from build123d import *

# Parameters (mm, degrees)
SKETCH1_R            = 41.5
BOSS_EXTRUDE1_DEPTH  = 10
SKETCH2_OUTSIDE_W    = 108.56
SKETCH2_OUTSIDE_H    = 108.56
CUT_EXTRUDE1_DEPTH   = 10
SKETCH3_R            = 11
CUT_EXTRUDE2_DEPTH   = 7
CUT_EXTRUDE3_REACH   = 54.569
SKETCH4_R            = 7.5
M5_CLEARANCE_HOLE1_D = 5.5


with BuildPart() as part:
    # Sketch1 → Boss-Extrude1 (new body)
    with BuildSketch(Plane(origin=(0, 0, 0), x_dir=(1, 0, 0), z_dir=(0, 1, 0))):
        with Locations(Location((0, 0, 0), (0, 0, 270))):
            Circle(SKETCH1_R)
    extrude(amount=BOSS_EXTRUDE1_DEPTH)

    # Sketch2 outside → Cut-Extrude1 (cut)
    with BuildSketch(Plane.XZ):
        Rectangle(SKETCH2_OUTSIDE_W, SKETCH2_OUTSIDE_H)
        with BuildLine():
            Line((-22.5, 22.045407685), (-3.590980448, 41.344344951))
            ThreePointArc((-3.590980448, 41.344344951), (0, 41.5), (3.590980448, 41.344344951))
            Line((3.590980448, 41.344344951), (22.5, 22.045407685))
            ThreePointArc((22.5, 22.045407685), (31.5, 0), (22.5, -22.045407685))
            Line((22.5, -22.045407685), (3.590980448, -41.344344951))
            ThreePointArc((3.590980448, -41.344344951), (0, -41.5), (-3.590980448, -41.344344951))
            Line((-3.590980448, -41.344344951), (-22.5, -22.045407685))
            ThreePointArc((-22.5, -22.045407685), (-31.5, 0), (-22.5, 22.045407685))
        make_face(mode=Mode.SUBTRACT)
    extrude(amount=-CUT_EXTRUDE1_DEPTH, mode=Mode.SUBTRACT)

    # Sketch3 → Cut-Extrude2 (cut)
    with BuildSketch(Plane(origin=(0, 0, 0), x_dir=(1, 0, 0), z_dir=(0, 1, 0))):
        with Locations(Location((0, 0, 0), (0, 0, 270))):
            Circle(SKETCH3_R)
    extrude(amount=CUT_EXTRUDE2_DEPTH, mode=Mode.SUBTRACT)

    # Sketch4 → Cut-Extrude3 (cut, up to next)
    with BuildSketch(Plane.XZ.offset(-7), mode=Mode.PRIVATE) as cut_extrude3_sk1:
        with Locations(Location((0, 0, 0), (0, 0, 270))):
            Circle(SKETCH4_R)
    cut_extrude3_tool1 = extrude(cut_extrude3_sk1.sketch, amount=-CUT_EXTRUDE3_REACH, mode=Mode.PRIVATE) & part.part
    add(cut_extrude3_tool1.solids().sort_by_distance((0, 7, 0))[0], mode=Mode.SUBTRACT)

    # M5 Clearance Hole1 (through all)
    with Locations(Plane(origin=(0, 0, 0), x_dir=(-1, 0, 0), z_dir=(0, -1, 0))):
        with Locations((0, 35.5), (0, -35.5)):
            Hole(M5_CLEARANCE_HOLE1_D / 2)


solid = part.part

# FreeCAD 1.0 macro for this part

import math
import FreeCAD as App
import Part
import Sketcher

doc = App.newDocument("Part")
params = doc.addObject("Spreadsheet::Sheet", "Params")
for row, (alias, value) in enumerate([
    ("sketch1_diameter", "83 mm"),
    ("pad1_length", "10 mm"),
    ("sketch2_radius", "31.5 mm"),
    ("sketch2_radius2", "41.5 mm"),
    ("sketch2_width", "108.56 mm"),
    ("pocket1_length", "10 mm"),
    ("sketch3_diameter", "22 mm"),
    ("pocket2_length", "7 mm"),
    ("sketch4_diameter", "15 mm"),
    ("sketch5_diameter", "5.5 mm"),
    ("hole_diameter", "5.5 mm"),
], start=1):
    params.set(f"A{row}", alias)
    params.set(f"B{row}", "=" + value)
    params.setAlias(f"B{row}", alias)

body = doc.addObject("PartDesign::Body", "Body")

sketch1 = doc.addObject("Sketcher::SketchObject", "Sketch")
body.addObject(sketch1)
sketch1.AttachmentSupport = (doc.XZ_Plane, [""])
sketch1.MapMode = "FlatFace"
sketch1.addGeometry(Part.Circle(App.Vector(0, 0, 0), App.Vector(0, 0, 1), 41.5), False)
sketch1.addConstraint([
    Sketcher.Constraint("Coincident", 0, 3, -1, 1),
    Sketcher.Constraint("Diameter", 0, 83.0),
])
sketch1.setExpression("Constraints[1]", "Params.sketch1_diameter")
pad1 = doc.addObject("PartDesign::Pad", "Pad")
body.addObject(pad1)
pad1.Profile = sketch1
pad1.setExpression("Length", "Params.pad1_length")
pad1.Reversed = True

sketch2 = doc.addObject("Sketcher::SketchObject", "Sketch001")
body.addObject(sketch2)
sketch2.AttachmentSupport = (doc.XZ_Plane, [""])
sketch2.MapMode = "FlatFace"
sketch2.addGeometry([
    Part.LineSegment(App.Vector(-54.28, 54.28, 0), App.Vector(-54.28, -54.28, 0)),
    Part.LineSegment(App.Vector(-54.28, -54.28, 0), App.Vector(54.28, -54.28, 0)),
    Part.LineSegment(App.Vector(54.28, -54.28, 0), App.Vector(54.28, 54.28, 0)),
    Part.LineSegment(App.Vector(54.28, 54.28, 0), App.Vector(-54.28, 54.28, 0)),
    Part.ArcOfCircle(Part.Circle(App.Vector(0, 0, 0), App.Vector(0, 0, 1), 31.5), math.radians(135.584691), math.radians(224.415309)),
    Part.LineSegment(App.Vector(-22.5, 22.045408, 0), App.Vector(-3.59098, 41.344345, 0)),
    Part.ArcOfCircle(Part.Circle(App.Vector(0, 0, 0), App.Vector(0, 0, 1), 41.5), math.radians(85.036009), math.radians(94.963991)),
    Part.LineSegment(App.Vector(3.59098, 41.344345, 0), App.Vector(22.5, 22.045408, 0)),
    Part.ArcOfCircle(Part.Circle(App.Vector(0, 0, 0), App.Vector(0, 0, 1), 31.5), math.radians(-44.415309), math.radians(44.415309)),
    Part.LineSegment(App.Vector(22.5, -22.045408, 0), App.Vector(3.59098, -41.344345, 0)),
    Part.ArcOfCircle(Part.Circle(App.Vector(0, 0, 0), App.Vector(0, 0, 1), 41.5), math.radians(-94.963991), math.radians(-85.036009)),
    Part.LineSegment(App.Vector(-3.59098, -41.344345, 0), App.Vector(-22.5, -22.045408, 0)),
], False)
sketch2.addConstraint([
    Sketcher.Constraint("Coincident", 0, 2, 1, 1),
    Sketcher.Constraint("Coincident", 1, 2, 2, 1),
    Sketcher.Constraint("Coincident", 2, 2, 3, 1),
    Sketcher.Constraint("Coincident", 3, 2, 0, 1),
    Sketcher.Constraint("Tangent", 4, 1, 5, 1),
    Sketcher.Constraint("Coincident", 5, 2, 6, 2),
    Sketcher.Constraint("Coincident", 6, 1, 7, 1),
    Sketcher.Constraint("Tangent", 7, 2, 8, 2),
    Sketcher.Constraint("Tangent", 8, 1, 9, 1),
    Sketcher.Constraint("Coincident", 9, 2, 10, 2),
    Sketcher.Constraint("Coincident", 10, 1, 11, 1),
    Sketcher.Constraint("Tangent", 11, 2, 4, 2),
    Sketcher.Constraint("Vertical", 0),
    Sketcher.Constraint("Horizontal", 1),
    Sketcher.Constraint("Vertical", 2),
    Sketcher.Constraint("Horizontal", 3),
    Sketcher.Constraint("Coincident", 4, 3, -1, 1),
    Sketcher.Constraint("Coincident", 6, 3, -1, 1),
    Sketcher.Constraint("Coincident", 8, 3, -1, 1),
    Sketcher.Constraint("Coincident", 10, 3, -1, 1),
    Sketcher.Constraint("Equal", 4, 8),
    Sketcher.Constraint("Equal", 6, 10),
    Sketcher.Constraint("Symmetric", 0, 2, 2, 2, -1, 1),
    Sketcher.Constraint("Parallel", 5, 9),
    Sketcher.Constraint("Parallel", 7, 11),
    Sketcher.Constraint("Horizontal", 5, 2, 6, 1),
    Sketcher.Constraint("Equal", 3, 0),
    Sketcher.Constraint("Radius", 4, 31.5),
    Sketcher.Constraint("Radius", 6, 41.5),
    Sketcher.Constraint("DistanceX", 1, 1, 1, 2, 108.56),
    Sketcher.Constraint("DistanceX", 4, 1, -1, 1, 22.5),
])
sketch2.setExpression("Constraints[27]", "Params.sketch2_radius")
sketch2.setExpression("Constraints[28]", "Params.sketch2_radius2")
sketch2.setExpression("Constraints[29]", "Params.sketch2_width")
pocket1 = doc.addObject("PartDesign::Pocket", "Pocket")
body.addObject(pocket1)
pocket1.Profile = sketch2
pocket1.setExpression("Length", "Params.pocket1_length")

sketch3 = doc.addObject("Sketcher::SketchObject", "Sketch002")
body.addObject(sketch3)
sketch3.AttachmentSupport = (doc.XZ_Plane, [""])
sketch3.MapMode = "FlatFace"
sketch3.addGeometry(Part.Circle(App.Vector(0, 0, 0), App.Vector(0, 0, 1), 11), False)
sketch3.addConstraint([
    Sketcher.Constraint("Coincident", 0, 3, -1, 1),
    Sketcher.Constraint("Diameter", 0, 22.0),
])
sketch3.setExpression("Constraints[1]", "Params.sketch3_diameter")
pocket2 = doc.addObject("PartDesign::Pocket", "Pocket001")
body.addObject(pocket2)
pocket2.Profile = sketch3
pocket2.setExpression("Length", "Params.pocket2_length")

sketch4 = doc.addObject("Sketcher::SketchObject", "Sketch003")
body.addObject(sketch4)
sketch4.AttachmentSupport = (doc.XZ_Plane, [""])
sketch4.MapMode = "FlatFace"
sketch4.AttachmentOffset = App.Placement(App.Vector(0, 0, -7), App.Rotation())
sketch4.addGeometry(Part.Circle(App.Vector(0, 0, 0), App.Vector(0, 0, 1), 7.5), False)
sketch4.addConstraint([
    Sketcher.Constraint("Coincident", 0, 3, -1, 1),
    Sketcher.Constraint("Diameter", 0, 15.0),
])
sketch4.setExpression("Constraints[1]", "Params.sketch4_diameter")
pocket3 = doc.addObject("PartDesign::Pocket", "Pocket002")
body.addObject(pocket3)
pocket3.Profile = sketch4
pocket3.Type = "UpToFirst"

sketch5 = doc.addObject("Sketcher::SketchObject", "Sketch004")
body.addObject(sketch5)
sketch5.AttachmentSupport = (doc.XZ_Plane, [""])
sketch5.MapMode = "FlatFace"
sketch5.addGeometry([
    Part.Circle(App.Vector(0, -35.5, 0), App.Vector(0, 0, 1), 2.75),
    Part.Circle(App.Vector(0, 35.5, 0), App.Vector(0, 0, 1), 2.75),
], False)
sketch5.addConstraint([
    Sketcher.Constraint("Equal", 0, 1),
    Sketcher.Constraint("Symmetric", 0, 3, 1, 3, -1, 1),
    Sketcher.Constraint("PointOnObject", 0, 3, -2),
    Sketcher.Constraint("Diameter", 0, 5.5),
    Sketcher.Constraint("DistanceY", 0, 3, 1, 3, 71.0),
])
sketch5.setExpression("Constraints[3]", "Params.sketch5_diameter")
doc.recompute()
hole = doc.addObject("PartDesign::Hole", "Hole")
body.addObject(hole)
hole.Profile = sketch5
hole.ThreadType = "None"
hole.setExpression("Diameter", "Params.hole_diameter")
hole.DepthType = "ThroughAll"

doc.recompute()
